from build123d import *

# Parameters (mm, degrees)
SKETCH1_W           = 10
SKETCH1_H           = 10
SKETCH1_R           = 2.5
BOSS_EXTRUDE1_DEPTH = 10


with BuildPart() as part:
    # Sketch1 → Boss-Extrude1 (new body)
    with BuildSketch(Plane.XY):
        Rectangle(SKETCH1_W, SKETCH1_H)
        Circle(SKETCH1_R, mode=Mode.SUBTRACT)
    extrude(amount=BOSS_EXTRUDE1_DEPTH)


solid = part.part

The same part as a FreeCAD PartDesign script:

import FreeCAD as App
import Part
import Sketcher

V = App.Vector
Q = App.Units.Quantity


def add_polygon(sketch, points):
    """Adds a closed chain of lines whose ends are joined by coincident constraints."""
    first, n = sketch.GeometryCount, len(points)
    for a, b in zip(points, points[1:] + points[:1]):
        sketch.addGeometry(Part.LineSegment(App.Vector(*a, 0), App.Vector(*b, 0)), False)
    for i in range(n):
        sketch.addConstraint(Sketcher.Constraint("Coincident", first + i, 2, first + (i + 1) % n, 1))

doc = App.newDocument("Part")
body = doc.addObject("PartDesign::Body", "Body")

sketch1 = body.newObject("Sketcher::SketchObject", "Sketch")
sketch1.AttachmentSupport = (doc.getObject("XY_Plane"), [""])
sketch1.MapMode = "FlatFace"
add_polygon(sketch1, [(-5, 5), (-5, -5), (5, -5), (5, 5)])
sketch1.addGeometry(Part.Circle(V(0, 0, 0), V(0, 0, 1), 2.5), False)
sketch1.addConstraint([
    Sketcher.Constraint("Vertical", 0),
    Sketcher.Constraint("Horizontal", 1),
    Sketcher.Constraint("Vertical", 2),
    Sketcher.Constraint("Horizontal", 3),
    Sketcher.Constraint("Coincident", 4, 3, -1, 1),
    Sketcher.Constraint("Symmetric", 0, 2, 2, 2, -1, 1),
    Sketcher.Constraint("Equal", 3, 0),
    Sketcher.Constraint("Diameter", 4, Q("5 mm")),
    Sketcher.Constraint("DistanceX", 1, 1, 1, 2, Q("10 mm")),
])
pad1 = body.newObject("PartDesign::Pad", "Pad")
pad1.Profile = sketch1
pad1.Length = 10

doc.recompute()
